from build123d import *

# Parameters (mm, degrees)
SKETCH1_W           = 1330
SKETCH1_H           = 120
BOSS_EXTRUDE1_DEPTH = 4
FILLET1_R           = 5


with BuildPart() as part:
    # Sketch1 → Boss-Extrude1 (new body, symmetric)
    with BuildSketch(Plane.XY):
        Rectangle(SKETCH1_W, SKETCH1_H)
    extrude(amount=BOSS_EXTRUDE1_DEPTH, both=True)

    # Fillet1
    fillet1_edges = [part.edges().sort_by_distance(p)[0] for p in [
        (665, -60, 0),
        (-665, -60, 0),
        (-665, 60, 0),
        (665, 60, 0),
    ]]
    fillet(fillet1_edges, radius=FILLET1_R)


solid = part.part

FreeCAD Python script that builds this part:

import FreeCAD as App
import Part
import Sketcher
from FreeCAD import Vector
Q = App.Units.Quantity


def edges_at(feature, points):
    """Names of the edges that pass closest to the given points."""
    edges = feature.Shape.Edges
    near = lambda p: min(range(len(edges)), key=lambda i: edges[i].distToShape(Part.Vertex(*p))[0])
    return sorted({f"Edge{near(p) + 1}" for p in points})

doc = App.newDocument("Part")
params = doc.addObject("Spreadsheet::Sheet", "Params")
for row, (alias, value) in enumerate([
    ("sketch1_width", "1330 mm"),
    ("sketch1_height", "120 mm"),
    ("pad1_length", "8 mm"),
    ("fillet_radius", "5 mm"),
], start=1):
    params.set(f"A{row}", alias)
    params.set(f"B{row}", "=" + value)
    params.setAlias(f"B{row}", alias)

body = doc.addObject("PartDesign::Body", "Body")

# Sketch on XY plane
sketch1 = body.newObject("Sketcher::SketchObject", "Sketch")
sketch1.AttachmentSupport = (doc.getObject("XY_Plane"), [""])
sketch1.MapMode = "FlatFace"
sketch1.addGeometry(Part.LineSegment(Vector(-665, 60, 0), Vector(-665, -60, 0)), False)
sketch1.addGeometry(Part.LineSegment(Vector(-665, -60, 0), Vector(665, -60, 0)), False)
sketch1.addGeometry(Part.LineSegment(Vector(665, -60, 0), Vector(665, 60, 0)), False)
sketch1.addGeometry(Part.LineSegment(Vector(665, 60, 0), Vector(-665, 60, 0)), False)
sketch1.addConstraint(Sketcher.Constraint("Coincident", 0, 2, 1, 1))
sketch1.addConstraint(Sketcher.Constraint("Coincident", 1, 2, 2, 1))
sketch1.addConstraint(Sketcher.Constraint("Coincident", 2, 2, 3, 1))
sketch1.addConstraint(Sketcher.Constraint("Coincident", 3, 2, 0, 1))
sketch1.addConstraint(Sketcher.Constraint("Vertical", 0))
sketch1.addConstraint(Sketcher.Constraint("Horizontal", 1))
sketch1.addConstraint(Sketcher.Constraint("Vertical", 2))
sketch1.addConstraint(Sketcher.Constraint("Horizontal", 3))
sketch1.addConstraint(Sketcher.Constraint("Symmetric", 0, 2, 2, 2, -1, 1))
sketch1.addConstraint(Sketcher.Constraint("DistanceX", 1, 1, 1, 2, Q("1330 mm")))
sketch1.addConstraint(Sketcher.Constraint("DistanceY", 0, 2, 0, 1, Q("120 mm")))
sketch1.setExpression("Constraints[9]", "Params.sketch1_width")
sketch1.setExpression("Constraints[10]", "Params.sketch1_height")
pad1 = body.newObject("PartDesign::Pad", "Pad")
pad1.Profile = sketch1
pad1.setExpression("Length", "Params.pad1_length")
pad1.Midplane = True
doc.recompute()

fillet = body.newObject("PartDesign::Fillet", "Fillet")
fillet.Base = (pad1, edges_at(pad1, [
    (665, -60, 0),
    (-665, -60, 0),
    (-665, 60, 0),
    (665, 60, 0),
]))
fillet.setExpression("Radius", "Params.fillet_radius")

doc.recompute()
